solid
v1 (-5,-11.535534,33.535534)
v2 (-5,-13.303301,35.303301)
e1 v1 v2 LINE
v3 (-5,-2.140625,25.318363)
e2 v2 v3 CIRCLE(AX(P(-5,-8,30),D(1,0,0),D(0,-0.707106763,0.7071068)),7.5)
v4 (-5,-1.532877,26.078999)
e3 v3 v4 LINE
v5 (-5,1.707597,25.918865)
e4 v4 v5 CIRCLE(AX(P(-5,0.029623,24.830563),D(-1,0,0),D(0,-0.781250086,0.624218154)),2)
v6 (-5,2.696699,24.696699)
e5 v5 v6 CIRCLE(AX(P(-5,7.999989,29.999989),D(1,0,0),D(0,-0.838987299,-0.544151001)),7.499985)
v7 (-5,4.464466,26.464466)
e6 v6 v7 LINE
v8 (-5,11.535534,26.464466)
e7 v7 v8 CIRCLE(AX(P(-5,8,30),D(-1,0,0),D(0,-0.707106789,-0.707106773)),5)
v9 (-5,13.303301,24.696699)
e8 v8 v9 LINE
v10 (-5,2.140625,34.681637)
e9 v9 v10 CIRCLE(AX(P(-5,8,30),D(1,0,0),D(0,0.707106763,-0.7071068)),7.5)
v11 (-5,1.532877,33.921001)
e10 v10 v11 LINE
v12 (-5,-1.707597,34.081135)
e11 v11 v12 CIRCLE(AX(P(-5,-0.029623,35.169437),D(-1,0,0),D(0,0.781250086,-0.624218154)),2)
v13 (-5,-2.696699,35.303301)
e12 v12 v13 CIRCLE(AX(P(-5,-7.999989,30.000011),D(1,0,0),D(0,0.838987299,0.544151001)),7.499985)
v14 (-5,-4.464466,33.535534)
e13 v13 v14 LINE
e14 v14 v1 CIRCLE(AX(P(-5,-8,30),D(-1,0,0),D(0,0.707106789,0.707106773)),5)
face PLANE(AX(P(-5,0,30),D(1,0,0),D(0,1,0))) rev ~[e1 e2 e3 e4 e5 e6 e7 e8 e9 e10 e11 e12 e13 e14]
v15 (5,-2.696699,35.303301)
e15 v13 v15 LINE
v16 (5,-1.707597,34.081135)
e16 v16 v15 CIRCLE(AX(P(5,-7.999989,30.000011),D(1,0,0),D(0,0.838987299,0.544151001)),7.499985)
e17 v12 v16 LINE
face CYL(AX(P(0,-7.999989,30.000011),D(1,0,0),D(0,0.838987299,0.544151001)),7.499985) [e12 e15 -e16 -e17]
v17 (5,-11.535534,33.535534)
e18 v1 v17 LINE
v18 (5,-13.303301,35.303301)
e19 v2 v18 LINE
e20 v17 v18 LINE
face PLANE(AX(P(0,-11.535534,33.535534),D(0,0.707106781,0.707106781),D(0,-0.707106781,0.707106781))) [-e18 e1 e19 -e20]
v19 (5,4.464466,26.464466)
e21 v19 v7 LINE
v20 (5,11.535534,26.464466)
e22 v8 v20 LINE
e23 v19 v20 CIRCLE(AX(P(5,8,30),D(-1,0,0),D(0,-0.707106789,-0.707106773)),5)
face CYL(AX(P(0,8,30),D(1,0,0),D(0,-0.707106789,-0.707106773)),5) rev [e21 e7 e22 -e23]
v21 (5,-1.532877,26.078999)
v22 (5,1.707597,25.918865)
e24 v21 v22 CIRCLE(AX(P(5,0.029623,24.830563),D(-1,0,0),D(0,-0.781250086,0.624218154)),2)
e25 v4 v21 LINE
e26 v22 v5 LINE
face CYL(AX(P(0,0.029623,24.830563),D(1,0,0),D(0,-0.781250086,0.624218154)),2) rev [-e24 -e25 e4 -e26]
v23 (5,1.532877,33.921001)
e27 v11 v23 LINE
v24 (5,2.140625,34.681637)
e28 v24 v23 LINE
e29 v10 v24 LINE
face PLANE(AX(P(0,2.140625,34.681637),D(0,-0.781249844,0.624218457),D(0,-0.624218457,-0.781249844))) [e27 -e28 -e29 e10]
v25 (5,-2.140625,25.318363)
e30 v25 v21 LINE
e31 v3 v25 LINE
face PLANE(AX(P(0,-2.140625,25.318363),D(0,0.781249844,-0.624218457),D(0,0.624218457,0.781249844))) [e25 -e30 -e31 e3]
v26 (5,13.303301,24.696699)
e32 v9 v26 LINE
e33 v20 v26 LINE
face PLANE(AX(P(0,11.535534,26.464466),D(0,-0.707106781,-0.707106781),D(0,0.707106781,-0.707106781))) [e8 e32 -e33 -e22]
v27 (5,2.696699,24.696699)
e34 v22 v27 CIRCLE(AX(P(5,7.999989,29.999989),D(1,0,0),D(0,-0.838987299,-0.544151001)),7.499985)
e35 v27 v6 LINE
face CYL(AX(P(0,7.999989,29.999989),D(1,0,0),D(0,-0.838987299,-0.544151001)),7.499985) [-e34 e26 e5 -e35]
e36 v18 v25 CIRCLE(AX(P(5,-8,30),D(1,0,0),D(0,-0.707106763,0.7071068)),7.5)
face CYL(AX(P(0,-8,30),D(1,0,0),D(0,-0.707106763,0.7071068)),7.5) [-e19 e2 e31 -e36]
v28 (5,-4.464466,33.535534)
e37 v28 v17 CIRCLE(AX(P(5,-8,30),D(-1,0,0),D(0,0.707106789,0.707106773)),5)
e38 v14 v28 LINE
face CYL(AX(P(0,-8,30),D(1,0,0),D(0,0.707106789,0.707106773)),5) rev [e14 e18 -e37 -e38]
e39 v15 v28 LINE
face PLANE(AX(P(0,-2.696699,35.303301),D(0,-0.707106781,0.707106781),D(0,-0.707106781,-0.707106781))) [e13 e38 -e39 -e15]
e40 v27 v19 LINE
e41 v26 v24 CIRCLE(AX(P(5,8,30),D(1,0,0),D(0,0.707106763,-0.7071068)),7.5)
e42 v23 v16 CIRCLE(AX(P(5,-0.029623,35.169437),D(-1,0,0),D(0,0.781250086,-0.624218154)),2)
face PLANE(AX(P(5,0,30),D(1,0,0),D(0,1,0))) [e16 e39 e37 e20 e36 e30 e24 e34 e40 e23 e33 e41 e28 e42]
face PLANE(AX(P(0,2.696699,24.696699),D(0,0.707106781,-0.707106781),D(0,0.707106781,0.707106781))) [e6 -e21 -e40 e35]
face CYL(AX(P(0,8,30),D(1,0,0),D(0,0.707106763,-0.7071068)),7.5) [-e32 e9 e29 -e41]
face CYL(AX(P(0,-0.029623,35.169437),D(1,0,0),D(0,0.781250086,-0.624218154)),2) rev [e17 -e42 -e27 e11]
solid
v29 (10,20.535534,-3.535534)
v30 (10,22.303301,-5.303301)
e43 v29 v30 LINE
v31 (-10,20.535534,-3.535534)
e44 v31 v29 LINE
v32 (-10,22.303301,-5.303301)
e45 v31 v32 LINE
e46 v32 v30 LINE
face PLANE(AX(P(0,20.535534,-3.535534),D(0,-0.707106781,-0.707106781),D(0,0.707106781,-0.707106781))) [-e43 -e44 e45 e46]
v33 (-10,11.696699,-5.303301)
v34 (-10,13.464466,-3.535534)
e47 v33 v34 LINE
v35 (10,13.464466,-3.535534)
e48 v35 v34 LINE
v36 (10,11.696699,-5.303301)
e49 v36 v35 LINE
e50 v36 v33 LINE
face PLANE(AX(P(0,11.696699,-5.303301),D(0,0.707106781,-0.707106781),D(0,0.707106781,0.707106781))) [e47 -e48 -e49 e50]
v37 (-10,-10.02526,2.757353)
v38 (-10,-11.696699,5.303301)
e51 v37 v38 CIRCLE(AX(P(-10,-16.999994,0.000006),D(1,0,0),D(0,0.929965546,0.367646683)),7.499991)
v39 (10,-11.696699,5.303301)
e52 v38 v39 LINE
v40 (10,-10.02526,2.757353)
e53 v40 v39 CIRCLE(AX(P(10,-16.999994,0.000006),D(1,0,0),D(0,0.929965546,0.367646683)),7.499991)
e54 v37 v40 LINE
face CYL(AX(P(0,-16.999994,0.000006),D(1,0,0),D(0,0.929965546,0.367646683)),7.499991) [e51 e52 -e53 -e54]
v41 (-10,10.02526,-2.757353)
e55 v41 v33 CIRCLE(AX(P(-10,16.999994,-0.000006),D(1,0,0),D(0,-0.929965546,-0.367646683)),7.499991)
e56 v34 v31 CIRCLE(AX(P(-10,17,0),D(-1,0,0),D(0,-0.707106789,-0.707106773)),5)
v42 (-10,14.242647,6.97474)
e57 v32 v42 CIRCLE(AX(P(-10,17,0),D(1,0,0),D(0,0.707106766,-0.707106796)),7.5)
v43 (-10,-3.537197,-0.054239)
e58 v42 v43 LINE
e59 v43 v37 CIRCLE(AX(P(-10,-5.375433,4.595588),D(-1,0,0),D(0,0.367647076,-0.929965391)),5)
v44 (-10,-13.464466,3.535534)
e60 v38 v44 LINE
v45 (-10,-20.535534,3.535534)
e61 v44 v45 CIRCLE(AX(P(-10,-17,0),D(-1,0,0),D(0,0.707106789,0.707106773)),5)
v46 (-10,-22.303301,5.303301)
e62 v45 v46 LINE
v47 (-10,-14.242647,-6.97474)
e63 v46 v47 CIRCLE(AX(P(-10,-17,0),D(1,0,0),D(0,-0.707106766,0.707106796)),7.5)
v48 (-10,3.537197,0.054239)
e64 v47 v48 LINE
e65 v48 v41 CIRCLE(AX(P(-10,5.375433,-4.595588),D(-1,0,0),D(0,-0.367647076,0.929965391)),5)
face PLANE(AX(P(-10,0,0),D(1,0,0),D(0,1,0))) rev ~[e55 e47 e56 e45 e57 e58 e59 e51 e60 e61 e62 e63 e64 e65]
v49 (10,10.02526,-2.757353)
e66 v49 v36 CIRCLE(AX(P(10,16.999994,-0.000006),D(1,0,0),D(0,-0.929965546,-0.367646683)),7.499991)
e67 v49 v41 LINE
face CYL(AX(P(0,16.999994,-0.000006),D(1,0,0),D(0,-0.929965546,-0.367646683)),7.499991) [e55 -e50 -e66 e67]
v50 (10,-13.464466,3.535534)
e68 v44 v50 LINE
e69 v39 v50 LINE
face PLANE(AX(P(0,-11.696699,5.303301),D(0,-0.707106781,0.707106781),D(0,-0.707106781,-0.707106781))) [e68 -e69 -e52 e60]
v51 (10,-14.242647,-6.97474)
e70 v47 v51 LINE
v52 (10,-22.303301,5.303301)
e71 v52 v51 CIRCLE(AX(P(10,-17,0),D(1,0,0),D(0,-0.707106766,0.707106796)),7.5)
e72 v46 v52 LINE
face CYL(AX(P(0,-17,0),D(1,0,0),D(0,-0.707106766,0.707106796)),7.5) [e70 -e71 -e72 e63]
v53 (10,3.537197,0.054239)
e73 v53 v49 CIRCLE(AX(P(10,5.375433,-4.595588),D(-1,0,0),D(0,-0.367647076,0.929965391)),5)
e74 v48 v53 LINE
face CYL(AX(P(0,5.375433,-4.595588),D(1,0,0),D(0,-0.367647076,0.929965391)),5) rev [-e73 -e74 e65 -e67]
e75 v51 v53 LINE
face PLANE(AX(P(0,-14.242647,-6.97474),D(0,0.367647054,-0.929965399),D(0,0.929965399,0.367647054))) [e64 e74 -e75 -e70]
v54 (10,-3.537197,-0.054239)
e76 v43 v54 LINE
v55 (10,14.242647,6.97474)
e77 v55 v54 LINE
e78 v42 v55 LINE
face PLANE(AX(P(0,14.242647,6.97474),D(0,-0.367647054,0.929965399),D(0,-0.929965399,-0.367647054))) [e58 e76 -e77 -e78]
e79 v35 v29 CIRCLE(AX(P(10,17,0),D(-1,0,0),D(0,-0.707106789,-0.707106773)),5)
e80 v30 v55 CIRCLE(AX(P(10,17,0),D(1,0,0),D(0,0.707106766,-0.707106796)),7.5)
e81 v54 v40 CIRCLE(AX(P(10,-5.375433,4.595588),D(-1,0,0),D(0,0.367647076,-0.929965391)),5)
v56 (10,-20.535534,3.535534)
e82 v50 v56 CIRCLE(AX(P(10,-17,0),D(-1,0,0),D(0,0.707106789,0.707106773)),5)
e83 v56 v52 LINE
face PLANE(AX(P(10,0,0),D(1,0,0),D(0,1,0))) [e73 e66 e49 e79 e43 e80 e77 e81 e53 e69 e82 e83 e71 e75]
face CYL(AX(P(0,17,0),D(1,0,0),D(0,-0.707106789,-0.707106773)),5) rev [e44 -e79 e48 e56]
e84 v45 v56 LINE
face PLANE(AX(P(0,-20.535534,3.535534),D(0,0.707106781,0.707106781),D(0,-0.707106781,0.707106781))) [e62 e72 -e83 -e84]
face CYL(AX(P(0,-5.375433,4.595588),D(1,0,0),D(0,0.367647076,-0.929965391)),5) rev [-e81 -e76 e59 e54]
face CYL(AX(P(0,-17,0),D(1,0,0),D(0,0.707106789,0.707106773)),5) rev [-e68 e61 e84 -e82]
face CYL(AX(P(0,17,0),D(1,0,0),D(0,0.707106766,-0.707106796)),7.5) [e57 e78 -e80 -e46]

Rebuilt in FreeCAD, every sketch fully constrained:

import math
import FreeCAD as App
import Part
import Sketcher
Q = App.Units.Quantity

doc = App.newDocument("Part")
body = doc.addObject("PartDesign::Body", "Body")

# Sketch on YZ plane
sketch1 = body.newObject("Sketcher::SketchObject", "Sketch")
sketch1.AttachmentSupport = (doc.getObject("YZ_Plane"), [""])
sketch1.MapMode = "FlatFace"
sketch1.addGeometry([
    Part.ArcOfCircle(Part.Circle(App.Vector(8, 30, 0), App.Vector(0, 0, 1), 5), math.radians(-45), math.radians(225)),  # 0
    Part.LineSegment(App.Vector(11.5, 26.5, 0), App.Vector(13.3, 24.7, 0)),  # 1
    Part.ArcOfCircle(Part.Circle(App.Vector(8, 30, 0), App.Vector(0, 0, 1), 7.5), math.radians(-45), math.radians(141)),  # 2
    Part.LineSegment(App.Vector(2.1, 34.7, 0), App.Vector(1.5, 33.9, 0)),  # 3
    Part.ArcOfCircle(Part.Circle(App.Vector(0, 35.2, 0), App.Vector(0, 0, 1), 2), math.radians(-147), math.radians(-39)),  # 4
    Part.ArcOfCircle(Part.Circle(App.Vector(-8, 30, 0), App.Vector(0, 0, 1), 7.5), math.radians(32.97), math.radians(45)),  # 5
    Part.LineSegment(App.Vector(-2.7, 35.3, 0), App.Vector(-4.5, 33.5, 0)),  # 6
    Part.ArcOfCircle(Part.Circle(App.Vector(-8, 30, 0), App.Vector(0, 0, 1), 5), math.radians(135), math.radians(405)),  # 7
    Part.LineSegment(App.Vector(-11.5, 33.5, 0), App.Vector(-13.3, 35.3, 0)),  # 8
    Part.ArcOfCircle(Part.Circle(App.Vector(-8, 30, 0), App.Vector(0, 0, 1), 7.5), math.radians(135), math.radians(321)),  # 9
    Part.LineSegment(App.Vector(-2.1, 25.3, 0), App.Vector(-1.5, 26.1, 0)),  # 10
    Part.ArcOfCircle(Part.Circle(App.Vector(0, 24.8, 0), App.Vector(0, 0, 1), 2), math.radians(33), math.radians(141)),  # 11
    Part.ArcOfCircle(Part.Circle(App.Vector(8, 30, 0), App.Vector(0, 0, 1), 7.5), math.radians(-147.03), math.radians(-135)),  # 12
    Part.LineSegment(App.Vector(2.7, 24.7, 0), App.Vector(4.5, 26.5, 0)),  # 13
], False)
sketch1.addConstraint([
    Sketcher.Constraint("Coincident", 0, 1, 1, 1),
    Sketcher.Constraint("Coincident", 1, 2, 2, 1),
    Sketcher.Constraint("Tangent", 2, 2, 3, 1),
    Sketcher.Constraint("Tangent", 3, 2, 4, 2),
    Sketcher.Constraint("Tangent", 4, 1, 5, 1),
    Sketcher.Constraint("Coincident", 5, 2, 6, 1),
    Sketcher.Constraint("Coincident", 6, 2, 7, 2),
    Sketcher.Constraint("Coincident", 7, 1, 8, 1),
    Sketcher.Constraint("Coincident", 8, 2, 9, 1),
    Sketcher.Constraint("Tangent", 9, 2, 10, 1),
    Sketcher.Constraint("Tangent", 10, 2, 11, 2),
    Sketcher.Constraint("Tangent", 11, 1, 12, 1),
    Sketcher.Constraint("Coincident", 12, 2, 13, 1),
    Sketcher.Constraint("Coincident", 13, 2, 0, 2),
    Sketcher.Constraint("Coincident", 2, 3, 0, 3),
    Sketcher.Constraint("Coincident", 9, 3, 7, 3),
    Sketcher.Constraint("Equal", 0, 7),
    Sketcher.Constraint("Equal", 2, 9),
    Sketcher.Constraint("Equal", 4, 11),
    Sketcher.Constraint("Equal", 5, 12),
    Sketcher.Constraint("Symmetric", 0, 3, 7, 3, -2),
    Sketcher.Constraint("Perpendicular", 1, 6),
    Sketcher.Constraint("Perpendicular", 6, 8),
    Sketcher.Constraint("Parallel", 3, 10),
    Sketcher.Constraint("Perpendicular", 8, 13),
    Sketcher.Constraint("Horizontal", 6, 2, 7, 1),
    Sketcher.Constraint("Horizontal", 5, 2, 8, 2),
    Sketcher.Constraint("Horizontal", 1, 2, 12, 2),
    Sketcher.Constraint("Horizontal", 0, 1, 13, 2),
    Sketcher.Constraint("Equal", 1, 6),
    Sketcher.Constraint("Equal", 3, 10),
    Sketcher.Constraint("Radius", 0, Q("5 mm")),
    Sketcher.Constraint("Radius", 4, Q("2 mm")),
    Sketcher.Constraint("Radius", 2, Q("7.5 mm")),
    Sketcher.Constraint("DistanceX", -1, 1, 0, 3, Q("8 mm")),
    Sketcher.Constraint("DistanceY", -1, 1, 0, 3, Q("30 mm")),
    Sketcher.Constraint("DistanceY", -1, 1, 3, 2, Q("33.921001 mm")),
    Sketcher.Constraint("Radius", 5, Q("7.499985 mm")),
    Sketcher.Constraint("DistanceX", -1, 1, 1, 2, Q("13.303301 mm")),
    Sketcher.Constraint("DistanceX", 5, 2, -1, 1, Q("2.696699 mm")),
    Sketcher.Constraint("DistanceY", 2, 2, 4, 3, Q("0.4878 mm")),
])
pad1 = body.newObject("PartDesign::Pad", "Pad")
pad1.Profile = sketch1
pad1.Length = 10
pad1.Midplane = True
body2 = doc.addObject("PartDesign::Body", "Body001")

# Sketch on YZ plane
sketch2 = body2.newObject("Sketcher::SketchObject", "Sketch001")
sketch2.AttachmentSupport = (doc.getObject("YZ_Plane001"), [""])
sketch2.MapMode = "FlatFace"
sketch2.addGeometry([
    Part.ArcOfCircle(Part.Circle(App.Vector(17, 0, 0), App.Vector(0, 0, 1), 5), math.radians(-45), math.radians(225)),  # 0
    Part.LineSegment(App.Vector(20.5, -3.5, 0), App.Vector(22.3, -5.3, 0)),  # 1
    Part.ArcOfCircle(Part.Circle(App.Vector(17, 0, 0), App.Vector(0, 0, 1), 7.5), math.radians(-45), math.radians(112)),  # 2
    Part.LineSegment(App.Vector(14.2, 7, 0), App.Vector(-3.5, -0.1, 0)),  # 3
    Part.ArcOfCircle(Part.Circle(App.Vector(-5.4, 4.6, 0), App.Vector(0, 0, 1), 5), math.radians(-158), math.radians(-68)),  # 4
    Part.ArcOfCircle(Part.Circle(App.Vector(-17, 0, 0), App.Vector(0, 0, 1), 7.5), math.radians(22), math.radians(45)),  # 5
    Part.LineSegment(App.Vector(-11.7, 5.3, 0), App.Vector(-13.5, 3.5, 0)),  # 6
    Part.ArcOfCircle(Part.Circle(App.Vector(-17, 0, 0), App.Vector(0, 0, 1), 5), math.radians(135), math.radians(405)),  # 7
    Part.LineSegment(App.Vector(-20.5, 3.5, 0), App.Vector(-22.3, 5.3, 0)),  # 8
    Part.ArcOfCircle(Part.Circle(App.Vector(-17, 0, 0), App.Vector(0, 0, 1), 7.5), math.radians(135), math.radians(292)),  # 9
    Part.LineSegment(App.Vector(-14.2, -7, 0), App.Vector(3.5, 0.1, 0)),  # 10
    Part.ArcOfCircle(Part.Circle(App.Vector(5.4, -4.6, 0), App.Vector(0, 0, 1), 5), math.radians(22), math.radians(112)),  # 11
    Part.ArcOfCircle(Part.Circle(App.Vector(17, 0, 0), App.Vector(0, 0, 1), 7.5), math.radians(-158), math.radians(-135)),  # 12
    Part.LineSegment(App.Vector(11.7, -5.3, 0), App.Vector(13.5, -3.5, 0)),  # 13
], False)
sketch2.addConstraint([
    Sketcher.Constraint("Coincident", 0, 1, 1, 1),
    Sketcher.Constraint("Coincident", 1, 2, 2, 1),
    Sketcher.Constraint("Tangent", 2, 2, 3, 1),
    Sketcher.Constraint("Tangent", 3, 2, 4, 2),
    Sketcher.Constraint("Tangent", 4, 1, 5, 1),
    Sketcher.Constraint("Coincident", 5, 2, 6, 1),
    Sketcher.Constraint("Coincident", 6, 2, 7, 2),
    Sketcher.Constraint("Coincident", 7, 1, 8, 1),
    Sketcher.Constraint("Coincident", 8, 2, 9, 1),
    Sketcher.Constraint("Tangent", 9, 2, 10, 1),
    Sketcher.Constraint("Tangent", 10, 2, 11, 2),
    Sketcher.Constraint("Tangent", 11, 1, 12, 1),
    Sketcher.Constraint("Coincident", 12, 2, 13, 1),
    Sketcher.Constraint("Coincident", 13, 2, 0, 2),
    Sketcher.Constraint("Coincident", 2, 3, 0, 3),
    Sketcher.Constraint("Coincident", 7, 3, 5, 3),
    Sketcher.Constraint("Coincident", 9, 3, 5, 3),
    Sketcher.Constraint("Coincident", 12, 3, 0, 3),
    Sketcher.Constraint("Equal", 0, 4),
    Sketcher.Constraint("Equal", 4, 7),
    Sketcher.Constraint("Equal", 2, 9),
    Sketcher.Constraint("Equal", 7, 11),
    Sketcher.Constraint("Equal", 5, 12),
    Sketcher.Constraint("Symmetric", 0, 3, 5, 3, -1, 1),
    Sketcher.Constraint("PointOnObject", 0, 3, -1),
    Sketcher.Constraint("Perpendicular", 1, 6),
    Sketcher.Constraint("Perpendicular", 6, 8),
    Sketcher.Constraint("Parallel", 3, 10),
    Sketcher.Constraint("Perpendicular", 8, 13),
    Sketcher.Constraint("Horizontal", 6, 2, 7, 1),
    Sketcher.Constraint("Horizontal", 5, 2, 8, 2),
    Sketcher.Constraint("Horizontal", 1, 2, 12, 2),
    Sketcher.Constraint("Equal", 1, 6),
    Sketcher.Constraint("Radius", 0, Q("5 mm")),
    Sketcher.Constraint("Radius", 2, Q("7.5 mm")),
    Sketcher.Constraint("DistanceX", -1, 1, 0, 3, Q("17 mm")),
    Sketcher.Constraint("DistanceX", -1, 1, 1, 2, Q("22.303301 mm")),
    Sketcher.Constraint("DistanceX", 5, 2, -1, 1, Q("11.696699 mm")),
    Sketcher.Constraint("DistanceX", 11, 3, 0, 1, Q("15.160101 mm")),
])
pad2 = body2.newObject("PartDesign::Pad", "Pad001")
pad2.Profile = sketch2
pad2.Length = 20
pad2.Midplane = True

doc.recompute()
